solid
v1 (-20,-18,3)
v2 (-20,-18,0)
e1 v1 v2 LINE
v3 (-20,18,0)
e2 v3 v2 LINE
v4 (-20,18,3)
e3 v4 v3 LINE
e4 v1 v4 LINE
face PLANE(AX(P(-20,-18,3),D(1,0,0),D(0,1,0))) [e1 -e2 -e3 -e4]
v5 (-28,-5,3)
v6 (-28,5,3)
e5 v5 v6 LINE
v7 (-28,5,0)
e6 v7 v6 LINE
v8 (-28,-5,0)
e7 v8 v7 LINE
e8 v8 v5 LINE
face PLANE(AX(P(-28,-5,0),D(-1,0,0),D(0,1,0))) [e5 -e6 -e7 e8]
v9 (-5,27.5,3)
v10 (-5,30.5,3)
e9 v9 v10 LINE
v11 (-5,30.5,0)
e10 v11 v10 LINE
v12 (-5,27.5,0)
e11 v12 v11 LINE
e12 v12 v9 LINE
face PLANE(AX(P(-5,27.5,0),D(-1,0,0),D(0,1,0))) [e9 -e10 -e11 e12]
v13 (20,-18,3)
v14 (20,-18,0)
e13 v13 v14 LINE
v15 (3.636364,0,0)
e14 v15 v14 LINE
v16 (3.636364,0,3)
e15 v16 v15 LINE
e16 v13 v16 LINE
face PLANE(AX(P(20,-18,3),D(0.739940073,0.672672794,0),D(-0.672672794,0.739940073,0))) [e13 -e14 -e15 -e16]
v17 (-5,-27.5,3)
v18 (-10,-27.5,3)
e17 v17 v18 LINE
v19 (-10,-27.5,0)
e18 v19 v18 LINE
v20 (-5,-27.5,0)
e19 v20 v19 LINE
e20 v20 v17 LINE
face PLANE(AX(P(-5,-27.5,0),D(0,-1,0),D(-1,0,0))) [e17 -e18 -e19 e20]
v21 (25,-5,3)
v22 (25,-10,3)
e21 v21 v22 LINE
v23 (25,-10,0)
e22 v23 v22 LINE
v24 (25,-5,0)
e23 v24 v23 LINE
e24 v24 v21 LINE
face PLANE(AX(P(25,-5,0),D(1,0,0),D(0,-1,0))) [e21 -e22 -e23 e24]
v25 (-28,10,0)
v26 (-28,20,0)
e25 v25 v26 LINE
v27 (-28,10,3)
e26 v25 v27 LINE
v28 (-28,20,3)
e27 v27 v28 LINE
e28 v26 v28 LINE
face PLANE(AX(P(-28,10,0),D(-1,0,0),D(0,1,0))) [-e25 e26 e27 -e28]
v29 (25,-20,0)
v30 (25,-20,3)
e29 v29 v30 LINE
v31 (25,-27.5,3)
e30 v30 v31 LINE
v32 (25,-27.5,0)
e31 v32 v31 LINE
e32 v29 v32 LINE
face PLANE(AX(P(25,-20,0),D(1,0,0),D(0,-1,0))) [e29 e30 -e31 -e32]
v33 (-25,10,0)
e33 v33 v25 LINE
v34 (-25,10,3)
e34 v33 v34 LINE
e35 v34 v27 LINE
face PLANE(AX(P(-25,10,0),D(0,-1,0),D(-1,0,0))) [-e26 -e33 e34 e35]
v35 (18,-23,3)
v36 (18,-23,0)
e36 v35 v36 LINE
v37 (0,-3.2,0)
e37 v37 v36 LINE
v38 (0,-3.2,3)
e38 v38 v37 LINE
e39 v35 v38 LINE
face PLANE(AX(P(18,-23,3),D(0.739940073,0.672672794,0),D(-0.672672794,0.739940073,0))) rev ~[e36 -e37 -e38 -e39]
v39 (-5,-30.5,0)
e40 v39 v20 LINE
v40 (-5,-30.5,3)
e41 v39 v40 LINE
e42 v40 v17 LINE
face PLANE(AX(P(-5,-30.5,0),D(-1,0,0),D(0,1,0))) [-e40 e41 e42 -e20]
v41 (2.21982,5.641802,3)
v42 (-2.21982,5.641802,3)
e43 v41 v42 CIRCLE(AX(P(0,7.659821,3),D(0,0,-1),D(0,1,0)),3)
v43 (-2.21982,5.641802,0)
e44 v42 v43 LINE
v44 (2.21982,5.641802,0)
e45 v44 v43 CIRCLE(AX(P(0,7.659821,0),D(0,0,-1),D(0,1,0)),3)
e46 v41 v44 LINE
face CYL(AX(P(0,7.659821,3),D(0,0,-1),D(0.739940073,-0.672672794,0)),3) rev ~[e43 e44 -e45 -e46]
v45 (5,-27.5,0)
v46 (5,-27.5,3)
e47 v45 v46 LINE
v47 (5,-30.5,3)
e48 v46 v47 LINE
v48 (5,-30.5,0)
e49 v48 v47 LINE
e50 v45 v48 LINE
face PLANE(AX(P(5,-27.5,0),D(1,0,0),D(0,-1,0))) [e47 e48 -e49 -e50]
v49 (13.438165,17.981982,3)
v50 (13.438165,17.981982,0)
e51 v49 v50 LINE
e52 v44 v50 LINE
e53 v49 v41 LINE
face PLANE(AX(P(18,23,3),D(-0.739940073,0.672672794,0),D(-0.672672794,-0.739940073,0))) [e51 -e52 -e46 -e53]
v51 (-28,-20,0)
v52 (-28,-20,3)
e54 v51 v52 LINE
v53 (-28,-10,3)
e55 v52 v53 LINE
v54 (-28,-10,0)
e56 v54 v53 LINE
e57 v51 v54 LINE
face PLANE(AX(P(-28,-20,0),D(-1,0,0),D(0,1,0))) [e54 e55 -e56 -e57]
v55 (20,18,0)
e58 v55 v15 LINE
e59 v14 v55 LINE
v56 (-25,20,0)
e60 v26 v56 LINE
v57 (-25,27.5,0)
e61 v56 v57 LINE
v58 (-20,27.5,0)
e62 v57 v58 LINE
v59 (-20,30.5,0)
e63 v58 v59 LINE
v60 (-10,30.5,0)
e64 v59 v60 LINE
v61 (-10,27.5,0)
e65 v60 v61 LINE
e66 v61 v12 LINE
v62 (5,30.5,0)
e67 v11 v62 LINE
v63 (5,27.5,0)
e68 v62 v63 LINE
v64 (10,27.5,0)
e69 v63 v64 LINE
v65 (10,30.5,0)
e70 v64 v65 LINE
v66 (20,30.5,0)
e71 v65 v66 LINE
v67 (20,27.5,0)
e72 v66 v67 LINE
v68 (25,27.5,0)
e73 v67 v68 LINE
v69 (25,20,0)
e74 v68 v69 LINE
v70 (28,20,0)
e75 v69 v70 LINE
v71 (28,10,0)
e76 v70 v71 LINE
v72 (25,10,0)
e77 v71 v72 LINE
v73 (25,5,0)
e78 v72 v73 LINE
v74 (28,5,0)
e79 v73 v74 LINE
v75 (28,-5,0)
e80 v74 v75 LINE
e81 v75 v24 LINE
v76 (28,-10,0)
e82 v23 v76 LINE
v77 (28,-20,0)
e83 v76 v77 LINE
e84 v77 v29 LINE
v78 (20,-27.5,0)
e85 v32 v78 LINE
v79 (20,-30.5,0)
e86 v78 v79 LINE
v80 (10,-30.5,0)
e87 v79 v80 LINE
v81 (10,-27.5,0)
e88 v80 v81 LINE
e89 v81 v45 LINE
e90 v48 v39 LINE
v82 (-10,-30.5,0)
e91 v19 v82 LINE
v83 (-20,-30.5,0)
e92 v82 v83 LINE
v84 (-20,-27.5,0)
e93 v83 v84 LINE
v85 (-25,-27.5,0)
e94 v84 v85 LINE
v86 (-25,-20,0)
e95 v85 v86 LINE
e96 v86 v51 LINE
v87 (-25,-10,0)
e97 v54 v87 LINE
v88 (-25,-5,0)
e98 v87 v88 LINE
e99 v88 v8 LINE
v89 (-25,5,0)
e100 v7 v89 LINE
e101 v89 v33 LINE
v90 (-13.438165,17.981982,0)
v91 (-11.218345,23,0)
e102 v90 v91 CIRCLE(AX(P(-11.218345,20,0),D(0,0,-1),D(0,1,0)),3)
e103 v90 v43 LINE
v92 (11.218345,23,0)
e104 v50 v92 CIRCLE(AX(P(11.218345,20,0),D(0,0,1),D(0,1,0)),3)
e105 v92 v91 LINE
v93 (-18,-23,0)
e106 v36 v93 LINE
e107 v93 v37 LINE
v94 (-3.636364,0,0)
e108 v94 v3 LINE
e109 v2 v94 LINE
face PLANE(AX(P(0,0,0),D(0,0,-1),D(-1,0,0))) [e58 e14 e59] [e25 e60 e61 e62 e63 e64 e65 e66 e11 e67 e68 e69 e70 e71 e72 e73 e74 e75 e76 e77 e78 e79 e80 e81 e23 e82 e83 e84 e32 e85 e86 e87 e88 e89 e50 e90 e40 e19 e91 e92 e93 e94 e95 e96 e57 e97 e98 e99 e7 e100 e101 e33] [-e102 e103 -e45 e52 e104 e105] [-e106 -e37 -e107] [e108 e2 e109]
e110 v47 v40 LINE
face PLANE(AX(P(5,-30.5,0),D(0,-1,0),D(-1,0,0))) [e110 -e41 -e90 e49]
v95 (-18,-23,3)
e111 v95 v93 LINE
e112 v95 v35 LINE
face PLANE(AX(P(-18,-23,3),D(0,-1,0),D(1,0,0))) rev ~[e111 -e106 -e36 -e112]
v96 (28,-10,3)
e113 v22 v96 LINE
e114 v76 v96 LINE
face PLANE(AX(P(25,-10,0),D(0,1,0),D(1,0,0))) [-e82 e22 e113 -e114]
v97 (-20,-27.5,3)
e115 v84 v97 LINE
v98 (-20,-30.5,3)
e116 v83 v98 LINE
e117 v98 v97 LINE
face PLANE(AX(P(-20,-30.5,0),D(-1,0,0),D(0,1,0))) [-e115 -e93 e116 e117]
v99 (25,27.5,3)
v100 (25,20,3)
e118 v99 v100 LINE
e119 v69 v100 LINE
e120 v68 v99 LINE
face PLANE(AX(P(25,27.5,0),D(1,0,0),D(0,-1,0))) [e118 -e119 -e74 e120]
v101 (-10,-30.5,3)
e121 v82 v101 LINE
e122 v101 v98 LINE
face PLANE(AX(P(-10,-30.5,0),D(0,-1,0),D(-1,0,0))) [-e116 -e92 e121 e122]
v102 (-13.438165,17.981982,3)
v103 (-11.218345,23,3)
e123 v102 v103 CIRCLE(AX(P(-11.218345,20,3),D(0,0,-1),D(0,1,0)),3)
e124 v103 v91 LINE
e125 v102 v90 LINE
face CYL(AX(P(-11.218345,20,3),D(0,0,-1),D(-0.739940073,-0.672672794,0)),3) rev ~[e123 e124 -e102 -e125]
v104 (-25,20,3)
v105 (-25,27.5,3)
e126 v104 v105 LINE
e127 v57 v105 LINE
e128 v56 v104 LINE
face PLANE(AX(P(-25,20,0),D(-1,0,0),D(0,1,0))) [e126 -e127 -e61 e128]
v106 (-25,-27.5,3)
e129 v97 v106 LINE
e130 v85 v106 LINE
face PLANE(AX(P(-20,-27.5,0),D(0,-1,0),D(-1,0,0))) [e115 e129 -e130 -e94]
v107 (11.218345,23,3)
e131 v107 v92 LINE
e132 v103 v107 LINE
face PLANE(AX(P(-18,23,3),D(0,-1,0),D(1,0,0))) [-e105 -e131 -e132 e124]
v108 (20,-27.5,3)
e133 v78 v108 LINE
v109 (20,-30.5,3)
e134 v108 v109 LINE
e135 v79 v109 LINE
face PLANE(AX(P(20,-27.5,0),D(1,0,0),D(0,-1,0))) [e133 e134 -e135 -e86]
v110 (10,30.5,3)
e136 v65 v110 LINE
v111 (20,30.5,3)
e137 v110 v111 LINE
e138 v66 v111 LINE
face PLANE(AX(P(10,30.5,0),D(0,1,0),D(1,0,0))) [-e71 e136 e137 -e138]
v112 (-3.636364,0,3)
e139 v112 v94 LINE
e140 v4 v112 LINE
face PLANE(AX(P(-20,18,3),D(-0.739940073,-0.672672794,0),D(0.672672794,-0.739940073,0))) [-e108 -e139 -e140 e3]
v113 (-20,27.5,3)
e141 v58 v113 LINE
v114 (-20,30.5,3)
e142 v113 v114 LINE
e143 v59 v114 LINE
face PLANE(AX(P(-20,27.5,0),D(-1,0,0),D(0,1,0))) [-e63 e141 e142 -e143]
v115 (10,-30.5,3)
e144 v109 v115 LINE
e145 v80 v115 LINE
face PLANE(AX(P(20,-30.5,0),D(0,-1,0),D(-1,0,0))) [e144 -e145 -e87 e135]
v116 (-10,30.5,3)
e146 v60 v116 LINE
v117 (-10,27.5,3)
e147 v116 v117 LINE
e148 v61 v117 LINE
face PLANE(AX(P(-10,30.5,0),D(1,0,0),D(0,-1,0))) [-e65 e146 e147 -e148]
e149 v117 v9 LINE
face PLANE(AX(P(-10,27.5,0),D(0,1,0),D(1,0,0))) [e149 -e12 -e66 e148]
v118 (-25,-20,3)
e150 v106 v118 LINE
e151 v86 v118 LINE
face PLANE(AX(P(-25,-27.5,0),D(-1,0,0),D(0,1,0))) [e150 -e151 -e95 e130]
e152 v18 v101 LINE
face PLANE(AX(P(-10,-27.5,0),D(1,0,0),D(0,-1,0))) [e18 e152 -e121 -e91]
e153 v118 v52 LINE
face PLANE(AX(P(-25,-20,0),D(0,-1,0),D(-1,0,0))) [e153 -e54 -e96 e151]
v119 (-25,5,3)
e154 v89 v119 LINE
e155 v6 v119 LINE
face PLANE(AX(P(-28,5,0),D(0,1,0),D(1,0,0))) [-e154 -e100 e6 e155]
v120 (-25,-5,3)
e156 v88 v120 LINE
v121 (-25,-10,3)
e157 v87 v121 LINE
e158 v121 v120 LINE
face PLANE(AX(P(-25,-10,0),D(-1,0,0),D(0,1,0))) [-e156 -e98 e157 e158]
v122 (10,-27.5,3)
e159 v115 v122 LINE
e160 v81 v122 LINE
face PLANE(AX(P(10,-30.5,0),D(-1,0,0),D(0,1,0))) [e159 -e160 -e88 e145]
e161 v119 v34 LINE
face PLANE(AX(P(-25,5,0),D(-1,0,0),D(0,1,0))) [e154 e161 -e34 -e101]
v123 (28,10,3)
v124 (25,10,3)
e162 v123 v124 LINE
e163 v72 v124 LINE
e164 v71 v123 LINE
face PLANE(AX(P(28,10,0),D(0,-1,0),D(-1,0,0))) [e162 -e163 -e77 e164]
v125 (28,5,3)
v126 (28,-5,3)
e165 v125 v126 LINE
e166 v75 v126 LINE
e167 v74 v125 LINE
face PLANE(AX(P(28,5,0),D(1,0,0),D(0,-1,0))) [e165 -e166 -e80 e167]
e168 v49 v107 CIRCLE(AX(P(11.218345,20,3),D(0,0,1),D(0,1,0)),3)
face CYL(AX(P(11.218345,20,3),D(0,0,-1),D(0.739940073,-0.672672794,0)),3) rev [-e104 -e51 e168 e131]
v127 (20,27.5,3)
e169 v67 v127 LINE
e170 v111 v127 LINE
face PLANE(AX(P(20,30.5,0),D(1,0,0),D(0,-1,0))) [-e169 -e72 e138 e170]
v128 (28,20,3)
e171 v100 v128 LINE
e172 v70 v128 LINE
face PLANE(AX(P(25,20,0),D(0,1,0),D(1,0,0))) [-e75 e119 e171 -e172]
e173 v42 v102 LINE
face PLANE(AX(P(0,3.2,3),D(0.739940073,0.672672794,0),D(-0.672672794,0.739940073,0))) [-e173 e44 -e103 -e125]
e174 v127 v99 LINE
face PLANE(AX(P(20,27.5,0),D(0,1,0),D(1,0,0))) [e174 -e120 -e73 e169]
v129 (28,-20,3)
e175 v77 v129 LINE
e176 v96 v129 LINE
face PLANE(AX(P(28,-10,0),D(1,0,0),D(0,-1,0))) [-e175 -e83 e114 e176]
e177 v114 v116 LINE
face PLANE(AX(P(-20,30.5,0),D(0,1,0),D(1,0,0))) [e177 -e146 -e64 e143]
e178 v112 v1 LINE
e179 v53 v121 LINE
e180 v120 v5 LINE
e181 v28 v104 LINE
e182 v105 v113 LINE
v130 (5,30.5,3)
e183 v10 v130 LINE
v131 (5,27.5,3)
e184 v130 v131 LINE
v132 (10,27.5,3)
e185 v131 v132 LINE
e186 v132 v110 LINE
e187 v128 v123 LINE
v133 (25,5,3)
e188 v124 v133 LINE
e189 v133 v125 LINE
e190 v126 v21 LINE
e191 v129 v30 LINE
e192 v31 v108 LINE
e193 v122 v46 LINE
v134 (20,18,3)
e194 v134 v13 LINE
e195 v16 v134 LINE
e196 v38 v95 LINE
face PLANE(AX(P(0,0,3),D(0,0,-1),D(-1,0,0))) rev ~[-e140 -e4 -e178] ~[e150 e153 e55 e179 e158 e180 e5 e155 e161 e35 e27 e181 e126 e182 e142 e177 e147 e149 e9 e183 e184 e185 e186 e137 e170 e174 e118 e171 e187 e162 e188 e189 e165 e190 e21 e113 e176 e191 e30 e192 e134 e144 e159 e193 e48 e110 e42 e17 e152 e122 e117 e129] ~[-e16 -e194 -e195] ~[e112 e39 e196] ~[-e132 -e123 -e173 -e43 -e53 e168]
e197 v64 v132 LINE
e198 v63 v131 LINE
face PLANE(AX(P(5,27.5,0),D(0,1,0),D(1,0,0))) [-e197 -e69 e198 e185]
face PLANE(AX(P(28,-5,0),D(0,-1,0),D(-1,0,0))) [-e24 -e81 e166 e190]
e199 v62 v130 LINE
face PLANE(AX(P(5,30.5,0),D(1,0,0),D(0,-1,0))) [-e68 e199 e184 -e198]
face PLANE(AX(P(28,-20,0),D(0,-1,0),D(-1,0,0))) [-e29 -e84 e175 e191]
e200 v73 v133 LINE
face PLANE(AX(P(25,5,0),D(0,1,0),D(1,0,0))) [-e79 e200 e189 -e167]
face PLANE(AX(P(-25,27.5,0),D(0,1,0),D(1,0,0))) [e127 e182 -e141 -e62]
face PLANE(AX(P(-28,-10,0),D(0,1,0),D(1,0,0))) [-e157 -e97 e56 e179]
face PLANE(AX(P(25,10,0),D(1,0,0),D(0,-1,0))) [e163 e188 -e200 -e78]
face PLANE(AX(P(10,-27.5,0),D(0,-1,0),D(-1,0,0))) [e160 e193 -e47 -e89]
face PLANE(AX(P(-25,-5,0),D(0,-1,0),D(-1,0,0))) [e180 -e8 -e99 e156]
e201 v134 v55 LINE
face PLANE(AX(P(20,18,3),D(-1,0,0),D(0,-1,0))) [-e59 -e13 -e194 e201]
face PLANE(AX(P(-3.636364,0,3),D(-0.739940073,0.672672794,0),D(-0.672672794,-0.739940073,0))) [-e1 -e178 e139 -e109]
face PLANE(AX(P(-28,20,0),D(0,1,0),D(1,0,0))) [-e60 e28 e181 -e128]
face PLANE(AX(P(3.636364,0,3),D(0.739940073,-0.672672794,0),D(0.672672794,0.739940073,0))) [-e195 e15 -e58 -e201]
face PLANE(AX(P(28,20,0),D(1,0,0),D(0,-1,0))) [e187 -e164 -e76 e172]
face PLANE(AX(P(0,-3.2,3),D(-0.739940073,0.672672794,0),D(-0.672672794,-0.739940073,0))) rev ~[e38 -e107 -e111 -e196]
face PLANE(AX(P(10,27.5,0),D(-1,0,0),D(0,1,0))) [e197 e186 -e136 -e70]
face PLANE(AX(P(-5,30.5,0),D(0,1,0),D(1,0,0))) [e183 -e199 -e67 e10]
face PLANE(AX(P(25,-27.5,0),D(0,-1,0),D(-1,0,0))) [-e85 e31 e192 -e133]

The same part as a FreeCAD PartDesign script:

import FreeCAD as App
import Part
import Sketcher

V = App.Vector


def edges_at(feature, points):
    """Names of the edges that pass closest to the given points."""
    edges = feature.Shape.Edges
    near = lambda p: min(range(len(edges)), key=lambda i: edges[i].distToShape(Part.Vertex(*p))[0])
    return sorted({f"Edge{near(p) + 1}" for p in points})


def add_polygon(sketch, points):
    """Adds a closed chain of lines whose ends are joined by coincident constraints."""
    first, n = sketch.GeometryCount, len(points)
    for a, b in zip(points, points[1:] + points[:1]):
        sketch.addGeometry(Part.LineSegment(App.Vector(*a, 0), App.Vector(*b, 0)), False)
    for i in range(n):
        sketch.addConstraint(Sketcher.Constraint("Coincident", first + i, 2, first + (i + 1) % n, 1))

doc = App.newDocument("Part")
body = doc.addObject("PartDesign::Body", "Body")

# Sketch on XY plane
sketch1 = body.newObject("Sketcher::SketchObject", "Sketch")
sketch1.AttachmentSupport = (doc.getObject("XY_Plane"), [""])
sketch1.MapMode = "FlatFace"
add_polygon(sketch1, [(-20, 27.5), (-25, 27.5), (-25, 20), (-28, 20), (-28, 10), (-25, 10), (-25, 5), (-28, 5), (-28, -5), (-25, -5), (-25, -10), (-28, -10), (-28, -20), (-25, -20), (-25, -27.5), (-20, -27.5), (-20, -30.5), (-10, -30.5), (-10, -27.5), (-5, -27.5), (-5, -30.5), (5, -30.5), (5, -27.5), (10, -27.5), (10, -30.5), (20, -30.5), (20, -27.5), (25, -27.5), (25, -20), (28, -20), (28, -10), (25, -10), (25, -5), (28, -5), (28, 5), (25, 5), (25, 10), (28, 10), (28, 20), (25, 20), (25, 27.5), (20, 27.5), (20, 30.5), (10, 30.5), (10, 27.5), (5, 27.5), (5, 30.5), (-5, 30.5), (-5, 27.5), (-10, 27.5), (-10, 30.5), (-20, 30.5)])  # lines 0-51
sketch1.addConstraint([
    Sketcher.Constraint("Horizontal", 0),
    Sketcher.Constraint("Vertical", 1),
    Sketcher.Constraint("Horizontal", 2),
    Sketcher.Constraint("Vertical", 3),
    Sketcher.Constraint("Horizontal", 4),
    Sketcher.Constraint("Vertical", 5),
    Sketcher.Constraint("Horizontal", 6),
    Sketcher.Constraint("Vertical", 7),
    Sketcher.Constraint("Horizontal", 8),
    Sketcher.Constraint("Vertical", 9),
    Sketcher.Constraint("Horizontal", 10),
    Sketcher.Constraint("Vertical", 11),
    Sketcher.Constraint("Horizontal", 12),
    Sketcher.Constraint("Vertical", 13),
    Sketcher.Constraint("Horizontal", 14),
    Sketcher.Constraint("Vertical", 15),
    Sketcher.Constraint("Horizontal", 16),
    Sketcher.Constraint("Vertical", 17),
    Sketcher.Constraint("Horizontal", 18),
    Sketcher.Constraint("Vertical", 19),
    Sketcher.Constraint("Horizontal", 20),
    Sketcher.Constraint("Vertical", 21),
    Sketcher.Constraint("Horizontal", 22),
    Sketcher.Constraint("Vertical", 23),
    Sketcher.Constraint("Horizontal", 24),
    Sketcher.Constraint("Vertical", 25),
    Sketcher.Constraint("Horizontal", 26),
    Sketcher.Constraint("Vertical", 27),
    Sketcher.Constraint("Horizontal", 28),
    Sketcher.Constraint("Vertical", 29),
    Sketcher.Constraint("Horizontal", 30),
    Sketcher.Constraint("Vertical", 31),
    Sketcher.Constraint("Horizontal", 32),
    Sketcher.Constraint("Vertical", 33),
    Sketcher.Constraint("Horizontal", 34),
    Sketcher.Constraint("Vertical", 35),
    Sketcher.Constraint("Horizontal", 36),
    Sketcher.Constraint("Vertical", 37),
    Sketcher.Constraint("Horizontal", 38),
    Sketcher.Constraint("Vertical", 39),
    Sketcher.Constraint("Horizontal", 40),
    Sketcher.Constraint("Vertical", 41),
    Sketcher.Constraint("Horizontal", 42),
    Sketcher.Constraint("Vertical", 43),
    Sketcher.Constraint("Horizontal", 44),
    Sketcher.Constraint("Vertical", 45),
    Sketcher.Constraint("Horizontal", 46),
    Sketcher.Constraint("Vertical", 47),
    Sketcher.Constraint("Horizontal", 48),
    Sketcher.Constraint("Vertical", 49),
    Sketcher.Constraint("Horizontal", 50),
    Sketcher.Constraint("Vertical", 51),
    Sketcher.Constraint("Symmetric", 0, 2, 26, 2, -1, 1),
    Sketcher.Constraint("Symmetric", 2, 2, 28, 2, -1, 1),
    Sketcher.Constraint("Symmetric", 4, 2, 30, 2, -1, 1),
    Sketcher.Constraint("Symmetric", 6, 2, 32, 2, -1, 1),
    Sketcher.Constraint("Symmetric", 8, 2, 34, 2, -1, 1),
    Sketcher.Constraint("Symmetric", 10, 2, 36, 2, -1, 1),
    Sketcher.Constraint("Symmetric", 12, 2, 38, 2, -1, 1),
    Sketcher.Constraint("Symmetric", 14, 2, 40, 2, -1, 1),
    Sketcher.Constraint("Symmetric", 16, 2, 42, 2, -1, 1),
    Sketcher.Constraint("Symmetric", 18, 2, 44, 2, -1, 1),
    Sketcher.Constraint("Symmetric", 20, 2, 46, 2, -1, 1),
    Sketcher.Constraint("Symmetric", 22, 2, 48, 2, -1, 1),
    Sketcher.Constraint("Symmetric", 24, 2, 50, 2, -1, 1),
    Sketcher.Constraint("Symmetric", 18, 2, 21, 2, -2),
    Sketcher.Constraint("Symmetric", 16, 2, 23, 2, -2),
    Sketcher.Constraint("Symmetric", 14, 2, 25, 2, -2),
    Sketcher.Constraint("Symmetric", 12, 2, 27, 2, -2),
    Sketcher.Constraint("Symmetric", 10, 2, 29, 2, -2),
    Sketcher.Constraint("Symmetric", 8, 2, 31, 2, -2),
    Sketcher.Constraint("Horizontal", 14, 2, 17, 2),
    Sketcher.Constraint("Horizontal", 16, 2, 19, 2),
    Sketcher.Constraint("Vertical", 1, 2, 4, 2),
    Sketcher.Constraint("Vertical", 3, 2, 6, 2),
    Sketcher.Constraint("Equal", 14, 18),
    Sketcher.Constraint("Equal", 16, 20),
    Sketcher.Constraint("Equal", 50, 3),
    Sketcher.Constraint("Equal", 48, 5),
    Sketcher.Constraint("Equal", 3, 7),
    Sketcher.Constraint("Equal", 38, 15),
    Sketcher.Constraint("DistanceX", 0, 2, 0, 1, 5.0),
    Sketcher.Constraint("DistanceX", 2, 2, 2, 1, 3.0),
    Sketcher.Constraint("DistanceX", 16, 1, 16, 2, 10.0),
    Sketcher.Constraint("DistanceY", 1, 2, 1, 1, 7.5),
])
pad1 = body.newObject("PartDesign::Pad", "Pad")
pad1.Profile = sketch1
pad1.Length = 3

# Sketch on XY plane
sketch2 = body.newObject("Sketcher::SketchObject", "Sketch001")
sketch2.AttachmentSupport = (doc.getObject("XY_Plane"), [""])
sketch2.MapMode = "FlatFace"
sketch2.AttachmentOffset = App.Placement(V(0, 0, 3), App.Rotation())
add_polygon(sketch2, [(18, 23), (-18, 23), (0, 3)])  # lines 0-2
add_polygon(sketch2, [(-18, -23), (18, -23), (0, -3)])  # lines 3-5
add_polygon(sketch2, [(20, -18), (20, 18), (4, 0)])  # lines 6-8
add_polygon(sketch2, [(-4, 0), (-20, 18), (-20, -18)])  # lines 9-11
sketch2.addConstraint([
    Sketcher.Constraint("Horizontal", 0),
    Sketcher.Constraint("Horizontal", 3),
    Sketcher.Constraint("Vertical", 6),
    Sketcher.Constraint("Vertical", 10),
    Sketcher.Constraint("Symmetric", 0, 2, 3, 2, -1, 1),
    Sketcher.Constraint("Symmetric", 1, 2, 4, 2, -1, 1),
    Sketcher.Constraint("Symmetric", 8, 2, 9, 2, -1, 1),
    Sketcher.Constraint("Symmetric", 7, 2, 11, 2, -1, 1),
    Sketcher.Constraint("PointOnObject", 1, 2, -2),
    Sketcher.Constraint("PointOnObject", 7, 2, -1),
    Sketcher.Constraint("Parallel", 2, 5),
    Sketcher.Constraint("Parallel", 5, 7),
    Sketcher.Constraint("Parallel", 4, 8),
    Sketcher.Constraint("Parallel", 7, 11),
    Sketcher.Constraint("Horizontal", 6, 2, 9, 2),
    Sketcher.Constraint("Equal", 3, 6),
    Sketcher.Constraint("DistanceX", 0, 2, 0, 1, 36.0),
    Sketcher.Constraint("DistanceY", -1, 1, 0, 2, 23.0),
    Sketcher.Constraint("DistanceX", -1, 1, 6, 2, 20.0),
    Sketcher.Constraint("DistanceY", -1, 1, 1, 2, 3.2),
])
pocket1 = body.newObject("PartDesign::Pocket", "Pocket")
pocket1.Profile = sketch2
pocket1.Length = 10
doc.recompute()

fillet = body.newObject("PartDesign::Fillet", "Fillet")
fillet.Base = (pocket1, edges_at(pocket1, [(18, 23, 1.5), (0, 3.2, 1.5), (-18, 23, 1.5)]))
fillet.Radius = 3

doc.recompute()
